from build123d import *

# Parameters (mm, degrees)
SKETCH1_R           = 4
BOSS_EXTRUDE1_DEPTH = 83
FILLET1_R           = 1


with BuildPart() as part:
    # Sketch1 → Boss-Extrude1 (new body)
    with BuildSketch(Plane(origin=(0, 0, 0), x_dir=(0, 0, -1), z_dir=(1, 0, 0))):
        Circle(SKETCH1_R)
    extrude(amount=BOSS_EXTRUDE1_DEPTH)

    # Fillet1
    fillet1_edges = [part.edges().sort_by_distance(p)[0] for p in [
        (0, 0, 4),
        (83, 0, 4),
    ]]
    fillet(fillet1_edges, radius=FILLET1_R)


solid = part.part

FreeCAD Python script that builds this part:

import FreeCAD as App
import Part
import Sketcher
from FreeCAD import Vector
Q = App.Units.Quantity


def edges_at(feature, points):
    """Names of the edges that pass closest to the given points."""
    edges = feature.Shape.Edges
    near = lambda p: min(range(len(edges)), key=lambda i: edges[i].distToShape(Part.Vertex(*p))[0])
    return sorted({f"Edge{near(p) + 1}" for p in points})

doc = App.newDocument("Part")
params = doc.addObject("Spreadsheet::Sheet", "Params")
for row, (alias, value) in enumerate([
    ("sketch1_diameter", "8 mm"),
    ("pad1_length", "83 mm"),
    ("fillet_radius", "1 mm"),
], start=1):
    params.set(f"A{row}", alias)
    params.set(f"B{row}", "=" + value)
    params.setAlias(f"B{row}", alias)

body = doc.addObject("PartDesign::Body", "Body")

# Sketch on YZ plane
sketch1 = body.newObject("Sketcher::SketchObject", "Sketch")
sketch1.AttachmentSupport = (doc.getObject("YZ_Plane"), [""])
sketch1.MapMode = "FlatFace"
sketch1.addGeometry(Part.Circle(Vector(0, 0, 0), Vector(0, 0, 1), 4), False)
sketch1.addConstraint(Sketcher.Constraint("Coincident", 0, 3, -1, 1))
sketch1.addConstraint(Sketcher.Constraint("Diameter", 0, Q("8 mm")))
sketch1.setExpression("Constraints[1]", "Params.sketch1_diameter")
pad1 = body.newObject("PartDesign::Pad", "Pad")
pad1.Profile = sketch1
pad1.setExpression("Length", "Params.pad1_length")
doc.recompute()

fillet = body.newObject("PartDesign::Fillet", "Fillet")
fillet.Base = (pad1, edges_at(pad1, [(0, 0, 4), (83, 0, 4)]))
fillet.setExpression("Radius", "Params.fillet_radius")

doc.recompute()
